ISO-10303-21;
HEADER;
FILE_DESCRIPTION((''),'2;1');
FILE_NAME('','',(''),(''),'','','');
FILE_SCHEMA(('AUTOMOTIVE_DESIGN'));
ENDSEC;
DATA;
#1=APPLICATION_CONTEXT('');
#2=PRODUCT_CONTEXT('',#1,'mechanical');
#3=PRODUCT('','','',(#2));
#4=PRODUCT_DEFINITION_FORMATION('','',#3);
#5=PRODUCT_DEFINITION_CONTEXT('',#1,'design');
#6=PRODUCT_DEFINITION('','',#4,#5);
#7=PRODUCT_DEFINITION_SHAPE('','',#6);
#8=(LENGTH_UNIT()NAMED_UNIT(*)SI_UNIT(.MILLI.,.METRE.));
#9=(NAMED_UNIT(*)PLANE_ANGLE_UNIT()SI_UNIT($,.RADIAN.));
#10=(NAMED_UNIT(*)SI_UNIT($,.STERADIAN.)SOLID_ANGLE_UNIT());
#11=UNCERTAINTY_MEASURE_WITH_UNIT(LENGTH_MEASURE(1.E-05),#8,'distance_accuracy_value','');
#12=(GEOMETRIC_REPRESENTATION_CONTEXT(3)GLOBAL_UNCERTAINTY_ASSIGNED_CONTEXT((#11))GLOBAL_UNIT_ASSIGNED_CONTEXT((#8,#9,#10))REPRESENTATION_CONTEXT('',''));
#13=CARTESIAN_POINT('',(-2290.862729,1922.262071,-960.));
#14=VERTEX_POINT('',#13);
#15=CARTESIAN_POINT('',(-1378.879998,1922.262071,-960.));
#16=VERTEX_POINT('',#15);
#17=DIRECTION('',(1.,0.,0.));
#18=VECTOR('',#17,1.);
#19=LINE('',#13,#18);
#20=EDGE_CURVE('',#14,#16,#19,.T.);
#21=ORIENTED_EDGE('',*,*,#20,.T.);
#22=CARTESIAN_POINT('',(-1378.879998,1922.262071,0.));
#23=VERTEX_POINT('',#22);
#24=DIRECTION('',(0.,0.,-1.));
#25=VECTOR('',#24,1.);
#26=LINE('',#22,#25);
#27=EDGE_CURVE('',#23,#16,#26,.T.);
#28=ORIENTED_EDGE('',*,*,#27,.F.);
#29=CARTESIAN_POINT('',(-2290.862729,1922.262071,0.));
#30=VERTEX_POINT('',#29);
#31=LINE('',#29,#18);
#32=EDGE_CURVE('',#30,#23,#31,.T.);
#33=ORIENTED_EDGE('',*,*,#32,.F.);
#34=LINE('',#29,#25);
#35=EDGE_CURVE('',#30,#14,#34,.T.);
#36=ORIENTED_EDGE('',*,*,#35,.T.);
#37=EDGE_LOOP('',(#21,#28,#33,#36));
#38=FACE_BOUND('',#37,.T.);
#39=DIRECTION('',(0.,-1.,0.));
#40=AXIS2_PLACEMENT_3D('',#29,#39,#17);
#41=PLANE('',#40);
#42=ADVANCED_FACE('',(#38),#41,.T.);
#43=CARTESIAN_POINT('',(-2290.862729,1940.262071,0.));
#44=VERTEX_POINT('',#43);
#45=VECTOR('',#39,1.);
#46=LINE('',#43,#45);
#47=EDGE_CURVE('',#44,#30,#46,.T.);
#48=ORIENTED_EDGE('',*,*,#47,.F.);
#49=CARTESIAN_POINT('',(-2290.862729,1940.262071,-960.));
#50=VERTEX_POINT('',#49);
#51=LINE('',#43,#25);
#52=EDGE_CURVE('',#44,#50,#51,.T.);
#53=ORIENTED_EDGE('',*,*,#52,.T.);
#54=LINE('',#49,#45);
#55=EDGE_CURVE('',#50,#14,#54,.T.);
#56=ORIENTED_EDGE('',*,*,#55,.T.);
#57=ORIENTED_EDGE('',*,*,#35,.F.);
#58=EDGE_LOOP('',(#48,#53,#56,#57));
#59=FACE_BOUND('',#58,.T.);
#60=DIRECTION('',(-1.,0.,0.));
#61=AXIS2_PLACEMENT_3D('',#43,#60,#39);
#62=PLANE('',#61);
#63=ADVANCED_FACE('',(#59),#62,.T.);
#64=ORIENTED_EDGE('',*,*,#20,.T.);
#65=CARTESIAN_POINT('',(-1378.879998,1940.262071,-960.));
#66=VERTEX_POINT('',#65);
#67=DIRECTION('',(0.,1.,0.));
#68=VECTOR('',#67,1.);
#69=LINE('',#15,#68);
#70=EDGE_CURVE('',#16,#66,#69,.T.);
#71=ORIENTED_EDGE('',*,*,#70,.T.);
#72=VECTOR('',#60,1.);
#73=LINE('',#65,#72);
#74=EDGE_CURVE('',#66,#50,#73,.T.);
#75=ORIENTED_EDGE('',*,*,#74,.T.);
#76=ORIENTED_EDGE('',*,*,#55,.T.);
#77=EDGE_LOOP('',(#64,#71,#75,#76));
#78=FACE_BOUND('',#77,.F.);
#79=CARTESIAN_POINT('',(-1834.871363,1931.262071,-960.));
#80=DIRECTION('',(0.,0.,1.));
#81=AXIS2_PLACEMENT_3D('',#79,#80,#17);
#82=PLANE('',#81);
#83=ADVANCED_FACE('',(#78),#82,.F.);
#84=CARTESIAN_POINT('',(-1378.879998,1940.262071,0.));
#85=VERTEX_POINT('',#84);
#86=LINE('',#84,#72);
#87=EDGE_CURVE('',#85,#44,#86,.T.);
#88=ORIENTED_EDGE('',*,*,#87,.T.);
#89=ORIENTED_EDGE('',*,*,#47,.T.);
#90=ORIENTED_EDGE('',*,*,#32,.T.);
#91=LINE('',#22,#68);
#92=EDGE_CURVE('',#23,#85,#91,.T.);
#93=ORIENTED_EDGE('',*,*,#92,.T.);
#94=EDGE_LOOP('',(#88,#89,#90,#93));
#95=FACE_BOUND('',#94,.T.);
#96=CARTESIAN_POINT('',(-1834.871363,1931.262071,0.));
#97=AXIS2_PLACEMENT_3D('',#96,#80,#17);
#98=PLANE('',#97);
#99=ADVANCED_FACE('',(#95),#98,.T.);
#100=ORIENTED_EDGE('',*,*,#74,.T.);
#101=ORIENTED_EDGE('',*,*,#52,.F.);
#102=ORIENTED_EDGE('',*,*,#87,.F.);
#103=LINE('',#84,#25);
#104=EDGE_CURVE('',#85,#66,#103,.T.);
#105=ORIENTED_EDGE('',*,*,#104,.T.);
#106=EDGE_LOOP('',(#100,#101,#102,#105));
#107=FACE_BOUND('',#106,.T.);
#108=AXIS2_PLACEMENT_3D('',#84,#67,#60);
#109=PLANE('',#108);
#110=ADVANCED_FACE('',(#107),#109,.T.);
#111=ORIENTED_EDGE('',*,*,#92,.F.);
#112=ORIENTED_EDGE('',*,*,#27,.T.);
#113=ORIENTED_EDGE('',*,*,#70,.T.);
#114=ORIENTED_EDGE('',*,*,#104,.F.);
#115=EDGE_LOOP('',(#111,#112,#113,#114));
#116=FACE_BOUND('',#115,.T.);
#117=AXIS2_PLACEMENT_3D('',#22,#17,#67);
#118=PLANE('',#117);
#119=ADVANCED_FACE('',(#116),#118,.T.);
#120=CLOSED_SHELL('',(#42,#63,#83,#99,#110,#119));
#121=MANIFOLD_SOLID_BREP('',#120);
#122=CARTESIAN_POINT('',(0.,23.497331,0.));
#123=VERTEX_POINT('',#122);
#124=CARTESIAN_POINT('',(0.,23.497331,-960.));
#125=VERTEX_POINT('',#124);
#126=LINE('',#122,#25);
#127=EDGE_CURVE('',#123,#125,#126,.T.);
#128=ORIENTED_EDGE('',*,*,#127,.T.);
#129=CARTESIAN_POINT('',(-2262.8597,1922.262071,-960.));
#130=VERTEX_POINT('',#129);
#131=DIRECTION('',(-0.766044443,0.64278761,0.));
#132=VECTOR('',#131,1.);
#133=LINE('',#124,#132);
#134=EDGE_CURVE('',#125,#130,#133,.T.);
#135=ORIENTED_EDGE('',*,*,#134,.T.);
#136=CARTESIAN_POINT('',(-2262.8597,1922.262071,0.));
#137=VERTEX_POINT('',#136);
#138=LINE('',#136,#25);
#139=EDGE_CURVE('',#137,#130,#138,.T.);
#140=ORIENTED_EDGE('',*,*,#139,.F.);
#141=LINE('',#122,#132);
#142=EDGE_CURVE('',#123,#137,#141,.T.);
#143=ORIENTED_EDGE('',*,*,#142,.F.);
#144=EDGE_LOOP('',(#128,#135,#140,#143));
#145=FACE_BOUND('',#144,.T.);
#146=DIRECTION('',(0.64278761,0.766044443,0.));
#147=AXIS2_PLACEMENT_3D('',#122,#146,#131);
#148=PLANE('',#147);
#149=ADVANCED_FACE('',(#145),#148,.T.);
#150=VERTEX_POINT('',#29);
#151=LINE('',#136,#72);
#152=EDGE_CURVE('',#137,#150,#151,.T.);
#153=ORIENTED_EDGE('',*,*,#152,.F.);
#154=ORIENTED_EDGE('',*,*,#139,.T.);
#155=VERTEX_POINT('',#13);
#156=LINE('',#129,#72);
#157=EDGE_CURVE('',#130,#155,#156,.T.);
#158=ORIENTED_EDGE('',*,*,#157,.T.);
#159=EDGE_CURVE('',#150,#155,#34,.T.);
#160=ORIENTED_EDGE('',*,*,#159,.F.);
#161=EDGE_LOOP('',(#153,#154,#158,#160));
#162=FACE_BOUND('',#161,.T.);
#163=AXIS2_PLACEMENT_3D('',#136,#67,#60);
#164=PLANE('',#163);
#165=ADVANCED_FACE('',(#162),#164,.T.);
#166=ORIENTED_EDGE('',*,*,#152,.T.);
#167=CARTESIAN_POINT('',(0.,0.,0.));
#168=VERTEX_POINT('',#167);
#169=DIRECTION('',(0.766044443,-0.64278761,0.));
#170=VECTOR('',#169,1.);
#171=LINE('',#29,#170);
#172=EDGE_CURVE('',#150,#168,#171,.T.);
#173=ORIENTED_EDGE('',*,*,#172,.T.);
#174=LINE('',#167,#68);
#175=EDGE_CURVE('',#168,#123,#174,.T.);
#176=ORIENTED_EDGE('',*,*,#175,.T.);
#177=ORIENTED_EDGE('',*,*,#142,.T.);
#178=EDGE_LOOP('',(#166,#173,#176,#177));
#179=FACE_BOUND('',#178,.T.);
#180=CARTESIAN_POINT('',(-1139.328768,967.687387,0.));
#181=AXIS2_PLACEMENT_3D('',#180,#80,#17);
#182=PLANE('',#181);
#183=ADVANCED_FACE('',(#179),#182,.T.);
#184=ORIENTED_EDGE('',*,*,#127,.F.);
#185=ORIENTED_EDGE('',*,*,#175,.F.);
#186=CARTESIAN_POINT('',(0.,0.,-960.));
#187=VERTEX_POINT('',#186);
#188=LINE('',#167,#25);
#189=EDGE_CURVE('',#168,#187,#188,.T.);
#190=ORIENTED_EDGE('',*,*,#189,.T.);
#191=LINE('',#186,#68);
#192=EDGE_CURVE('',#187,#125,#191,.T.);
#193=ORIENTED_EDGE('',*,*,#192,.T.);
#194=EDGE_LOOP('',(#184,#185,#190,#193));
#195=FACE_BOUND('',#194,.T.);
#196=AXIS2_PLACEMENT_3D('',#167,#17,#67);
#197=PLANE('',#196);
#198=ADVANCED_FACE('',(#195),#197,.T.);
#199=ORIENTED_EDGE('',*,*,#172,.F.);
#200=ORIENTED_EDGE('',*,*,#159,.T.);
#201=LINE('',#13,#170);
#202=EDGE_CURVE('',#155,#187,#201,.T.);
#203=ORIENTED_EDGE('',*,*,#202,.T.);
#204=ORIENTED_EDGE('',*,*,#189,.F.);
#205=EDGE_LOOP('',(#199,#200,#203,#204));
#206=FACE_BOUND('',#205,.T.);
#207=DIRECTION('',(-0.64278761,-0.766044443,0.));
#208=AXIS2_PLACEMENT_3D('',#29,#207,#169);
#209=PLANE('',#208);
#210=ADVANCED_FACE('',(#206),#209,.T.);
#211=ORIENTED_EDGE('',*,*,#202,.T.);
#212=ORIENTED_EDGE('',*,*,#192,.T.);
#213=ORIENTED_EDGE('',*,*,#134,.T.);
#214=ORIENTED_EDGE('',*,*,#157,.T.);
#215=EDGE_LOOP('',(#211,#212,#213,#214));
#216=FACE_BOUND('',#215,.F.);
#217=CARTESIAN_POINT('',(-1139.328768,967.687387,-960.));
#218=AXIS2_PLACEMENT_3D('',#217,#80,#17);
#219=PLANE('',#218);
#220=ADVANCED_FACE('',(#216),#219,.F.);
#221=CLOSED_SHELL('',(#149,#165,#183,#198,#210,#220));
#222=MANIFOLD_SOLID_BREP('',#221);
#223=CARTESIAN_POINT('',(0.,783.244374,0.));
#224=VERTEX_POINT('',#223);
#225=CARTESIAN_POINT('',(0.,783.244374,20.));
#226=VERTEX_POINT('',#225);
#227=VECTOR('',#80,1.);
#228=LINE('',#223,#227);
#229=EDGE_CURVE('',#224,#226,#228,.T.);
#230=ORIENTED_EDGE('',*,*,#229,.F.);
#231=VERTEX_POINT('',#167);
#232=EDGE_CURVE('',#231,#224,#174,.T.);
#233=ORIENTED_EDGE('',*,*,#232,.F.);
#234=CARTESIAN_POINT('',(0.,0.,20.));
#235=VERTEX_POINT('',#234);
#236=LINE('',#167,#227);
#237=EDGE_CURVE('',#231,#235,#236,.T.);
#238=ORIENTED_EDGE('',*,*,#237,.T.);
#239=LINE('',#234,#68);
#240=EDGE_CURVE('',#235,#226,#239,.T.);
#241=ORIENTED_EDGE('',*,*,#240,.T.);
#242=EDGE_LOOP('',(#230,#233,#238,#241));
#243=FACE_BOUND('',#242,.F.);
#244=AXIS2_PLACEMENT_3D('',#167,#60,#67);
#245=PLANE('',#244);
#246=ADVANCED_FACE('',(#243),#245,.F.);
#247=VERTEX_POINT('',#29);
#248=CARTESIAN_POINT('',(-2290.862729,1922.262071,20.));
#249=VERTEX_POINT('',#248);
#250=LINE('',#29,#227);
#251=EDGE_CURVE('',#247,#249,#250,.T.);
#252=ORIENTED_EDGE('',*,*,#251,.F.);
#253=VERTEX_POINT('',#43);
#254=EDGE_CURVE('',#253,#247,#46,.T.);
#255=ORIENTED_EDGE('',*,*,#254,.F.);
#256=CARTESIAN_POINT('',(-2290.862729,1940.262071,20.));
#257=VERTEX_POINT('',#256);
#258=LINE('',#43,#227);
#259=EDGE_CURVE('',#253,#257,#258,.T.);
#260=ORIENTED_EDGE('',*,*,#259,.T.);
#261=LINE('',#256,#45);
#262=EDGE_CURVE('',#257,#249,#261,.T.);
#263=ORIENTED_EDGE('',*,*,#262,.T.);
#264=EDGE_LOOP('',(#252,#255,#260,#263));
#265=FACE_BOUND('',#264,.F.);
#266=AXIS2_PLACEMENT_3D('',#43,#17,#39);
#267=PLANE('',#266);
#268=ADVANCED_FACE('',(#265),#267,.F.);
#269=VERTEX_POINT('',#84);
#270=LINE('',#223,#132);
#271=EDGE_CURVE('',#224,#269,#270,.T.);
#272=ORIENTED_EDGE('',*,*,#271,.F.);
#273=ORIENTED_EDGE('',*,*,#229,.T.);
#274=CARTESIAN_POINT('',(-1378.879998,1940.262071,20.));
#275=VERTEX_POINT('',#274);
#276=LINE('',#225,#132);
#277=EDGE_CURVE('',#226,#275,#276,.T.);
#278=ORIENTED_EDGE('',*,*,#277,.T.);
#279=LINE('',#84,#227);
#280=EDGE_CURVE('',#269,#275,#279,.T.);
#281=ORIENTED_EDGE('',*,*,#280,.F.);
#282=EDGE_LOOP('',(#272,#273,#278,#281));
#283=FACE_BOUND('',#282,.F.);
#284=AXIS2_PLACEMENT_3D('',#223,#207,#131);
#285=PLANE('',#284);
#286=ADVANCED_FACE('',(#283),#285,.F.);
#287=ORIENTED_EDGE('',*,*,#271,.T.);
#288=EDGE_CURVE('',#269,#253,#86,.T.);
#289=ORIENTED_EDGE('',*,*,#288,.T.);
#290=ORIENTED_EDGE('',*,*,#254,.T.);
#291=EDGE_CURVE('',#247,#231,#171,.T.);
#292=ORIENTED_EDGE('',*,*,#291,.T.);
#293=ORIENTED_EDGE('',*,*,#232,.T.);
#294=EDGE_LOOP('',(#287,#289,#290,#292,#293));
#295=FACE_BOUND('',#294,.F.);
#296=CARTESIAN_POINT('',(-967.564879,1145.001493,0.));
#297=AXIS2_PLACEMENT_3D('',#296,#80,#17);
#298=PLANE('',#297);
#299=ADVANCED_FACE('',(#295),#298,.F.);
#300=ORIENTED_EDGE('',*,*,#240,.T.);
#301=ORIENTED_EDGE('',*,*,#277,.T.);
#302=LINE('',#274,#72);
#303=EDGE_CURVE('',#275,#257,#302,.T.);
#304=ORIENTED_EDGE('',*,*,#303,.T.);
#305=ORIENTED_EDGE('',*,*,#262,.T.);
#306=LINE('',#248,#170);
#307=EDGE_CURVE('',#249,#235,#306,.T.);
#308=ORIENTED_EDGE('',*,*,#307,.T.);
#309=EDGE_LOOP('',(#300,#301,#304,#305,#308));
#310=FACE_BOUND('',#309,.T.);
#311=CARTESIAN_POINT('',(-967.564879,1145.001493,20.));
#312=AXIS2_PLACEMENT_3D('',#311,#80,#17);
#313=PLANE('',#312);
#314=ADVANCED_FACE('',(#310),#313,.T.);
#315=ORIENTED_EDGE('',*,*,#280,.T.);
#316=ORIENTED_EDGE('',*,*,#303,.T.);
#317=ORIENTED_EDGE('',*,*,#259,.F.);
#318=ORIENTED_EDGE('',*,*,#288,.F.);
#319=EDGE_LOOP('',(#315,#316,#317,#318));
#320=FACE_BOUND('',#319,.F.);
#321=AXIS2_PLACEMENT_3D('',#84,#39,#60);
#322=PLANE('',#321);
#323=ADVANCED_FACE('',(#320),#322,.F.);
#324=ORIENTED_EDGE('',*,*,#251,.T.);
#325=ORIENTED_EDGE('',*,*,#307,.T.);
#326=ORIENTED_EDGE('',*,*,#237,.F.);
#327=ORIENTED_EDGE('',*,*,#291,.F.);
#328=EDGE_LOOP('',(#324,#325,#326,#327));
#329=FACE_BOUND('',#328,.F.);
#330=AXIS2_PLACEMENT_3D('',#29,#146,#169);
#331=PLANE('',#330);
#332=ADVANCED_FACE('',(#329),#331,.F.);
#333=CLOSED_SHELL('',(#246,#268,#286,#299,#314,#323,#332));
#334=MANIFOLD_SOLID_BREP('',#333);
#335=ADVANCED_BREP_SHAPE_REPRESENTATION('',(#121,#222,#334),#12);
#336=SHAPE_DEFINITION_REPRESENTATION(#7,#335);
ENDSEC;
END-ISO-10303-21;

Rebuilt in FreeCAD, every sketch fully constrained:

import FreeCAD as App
import Part
import Sketcher
from FreeCAD import Vector
Q = App.Units.Quantity


def add_polygon(sketch, points):
    """Adds a closed chain of lines whose ends are joined by coincident constraints."""
    first, n = sketch.GeometryCount, len(points)
    for a, b in zip(points, points[1:] + points[:1]):
        sketch.addGeometry(Part.LineSegment(App.Vector(*a, 0), App.Vector(*b, 0)), False)
    for i in range(n):
        sketch.addConstraint(Sketcher.Constraint("Coincident", first + i, 2, first + (i + 1) % n, 1))

doc = App.newDocument("Part")
body = doc.addObject("PartDesign::Body", "Body")

# Sketch on XY plane
sketch1 = doc.addObject("Sketcher::SketchObject", "Sketch")
body.addObject(sketch1)
sketch1.AttachmentSupport = (doc.XY_Plane, [""])
sketch1.MapMode = "FlatFace"
add_polygon(sketch1, [(0, 783), (-1379, 1940), (-2291, 1940), (-2291, 1922), (0, 0)])  # lines 0-4
sketch1.addConstraint(Sketcher.Constraint("Horizontal", 1))
sketch1.addConstraint(Sketcher.Constraint("Vertical", 2))
sketch1.addConstraint(Sketcher.Constraint("Vertical", 4))
sketch1.addConstraint(Sketcher.Constraint("Coincident", 3, 2, -1, 1))
sketch1.addConstraint(Sketcher.Constraint("Parallel", 0, 3))
sketch1.addConstraint(Sketcher.Constraint("DistanceY", 2, 2, 2, 1, Q("18 mm")))
sketch1.addConstraint(Sketcher.Constraint("Angle", 0, Q("140 deg")))
sketch1.addConstraint(Sketcher.Constraint("Distance", 0, Q("1800 mm")))
sketch1.addConstraint(Sketcher.Constraint("DistanceX", 1, 2, 1, 1, Q("911.982731 mm")))
pad1 = doc.addObject("PartDesign::Pad", "Pad")
body.addObject(pad1)
pad1.Profile = sketch1
pad1.Length = 20
body2 = doc.addObject("PartDesign::Body", "Body001")

# Sketch on XY plane
sketch2 = doc.addObject("Sketcher::SketchObject", "Sketch001")
body2.addObject(sketch2)
sketch2.AttachmentSupport = (doc.getObject("XY_Plane001"), [""])
sketch2.MapMode = "FlatFace"
add_polygon(sketch2, [(-2291, 1940), (-2291, 1922), (-1379, 1922), (-1379, 1940)])  # lines 0-3
sketch2.addConstraint(Sketcher.Constraint("Vertical", 0))
sketch2.addConstraint(Sketcher.Constraint("Horizontal", 1))
sketch2.addConstraint(Sketcher.Constraint("Vertical", 2))
sketch2.addConstraint(Sketcher.Constraint("Horizontal", 3))
sketch2.addConstraint(Sketcher.Constraint("DistanceY", 0, 2, 0, 1, Q("18 mm")))
sketch2.addConstraint(Sketcher.Constraint("DistanceX", 1, 1, 1, 2, Q("911.982731 mm")))
sketch2.addConstraint(Sketcher.Constraint("DistanceX", 0, 2, -1, 1, Q("2290.862729 mm")))
sketch2.addConstraint(Sketcher.Constraint("DistanceY", -1, 1, 0, 2, Q("1922.262071 mm")))
pad2 = doc.addObject("PartDesign::Pad", "Pad001")
body2.addObject(pad2)
pad2.Profile = sketch2
pad2.Length = 960
pad2.Reversed = True
body3 = doc.addObject("PartDesign::Body", "Body002")

# Sketch on XY plane
sketch3 = doc.addObject("Sketcher::SketchObject", "Sketch002")
body3.addObject(sketch3)
sketch3.AttachmentSupport = (doc.getObject("XY_Plane002"), [""])
sketch3.MapMode = "FlatFace"
add_polygon(sketch3, [(-2291, 1922), (0, 0), (0, 23), (-2263, 1922)])  # lines 0-3
sketch3.addConstraint(Sketcher.Constraint("Vertical", 1))
sketch3.addConstraint(Sketcher.Constraint("Horizontal", 3))
sketch3.addConstraint(Sketcher.Constraint("Coincident", 0, 2, -1, 1))
sketch3.addConstraint(Sketcher.Constraint("Parallel", 0, 2))
sketch3.addConstraint(Sketcher.Constraint("Angle", 0, Q("-40 deg")))
sketch3.addConstraint(Sketcher.Constraint("DistanceX", 3, 2, 3, 1, Q("28.003029 mm")))
sketch3.addConstraint(Sketcher.Constraint("DistanceX", 2, 2, -1, 1, Q("2262.8597 mm")))
pad3 = doc.addObject("PartDesign::Pad", "Pad002")
body3.addObject(pad3)
pad3.Profile = sketch3
pad3.Length = 960
pad3.Reversed = True

doc.recompute()
